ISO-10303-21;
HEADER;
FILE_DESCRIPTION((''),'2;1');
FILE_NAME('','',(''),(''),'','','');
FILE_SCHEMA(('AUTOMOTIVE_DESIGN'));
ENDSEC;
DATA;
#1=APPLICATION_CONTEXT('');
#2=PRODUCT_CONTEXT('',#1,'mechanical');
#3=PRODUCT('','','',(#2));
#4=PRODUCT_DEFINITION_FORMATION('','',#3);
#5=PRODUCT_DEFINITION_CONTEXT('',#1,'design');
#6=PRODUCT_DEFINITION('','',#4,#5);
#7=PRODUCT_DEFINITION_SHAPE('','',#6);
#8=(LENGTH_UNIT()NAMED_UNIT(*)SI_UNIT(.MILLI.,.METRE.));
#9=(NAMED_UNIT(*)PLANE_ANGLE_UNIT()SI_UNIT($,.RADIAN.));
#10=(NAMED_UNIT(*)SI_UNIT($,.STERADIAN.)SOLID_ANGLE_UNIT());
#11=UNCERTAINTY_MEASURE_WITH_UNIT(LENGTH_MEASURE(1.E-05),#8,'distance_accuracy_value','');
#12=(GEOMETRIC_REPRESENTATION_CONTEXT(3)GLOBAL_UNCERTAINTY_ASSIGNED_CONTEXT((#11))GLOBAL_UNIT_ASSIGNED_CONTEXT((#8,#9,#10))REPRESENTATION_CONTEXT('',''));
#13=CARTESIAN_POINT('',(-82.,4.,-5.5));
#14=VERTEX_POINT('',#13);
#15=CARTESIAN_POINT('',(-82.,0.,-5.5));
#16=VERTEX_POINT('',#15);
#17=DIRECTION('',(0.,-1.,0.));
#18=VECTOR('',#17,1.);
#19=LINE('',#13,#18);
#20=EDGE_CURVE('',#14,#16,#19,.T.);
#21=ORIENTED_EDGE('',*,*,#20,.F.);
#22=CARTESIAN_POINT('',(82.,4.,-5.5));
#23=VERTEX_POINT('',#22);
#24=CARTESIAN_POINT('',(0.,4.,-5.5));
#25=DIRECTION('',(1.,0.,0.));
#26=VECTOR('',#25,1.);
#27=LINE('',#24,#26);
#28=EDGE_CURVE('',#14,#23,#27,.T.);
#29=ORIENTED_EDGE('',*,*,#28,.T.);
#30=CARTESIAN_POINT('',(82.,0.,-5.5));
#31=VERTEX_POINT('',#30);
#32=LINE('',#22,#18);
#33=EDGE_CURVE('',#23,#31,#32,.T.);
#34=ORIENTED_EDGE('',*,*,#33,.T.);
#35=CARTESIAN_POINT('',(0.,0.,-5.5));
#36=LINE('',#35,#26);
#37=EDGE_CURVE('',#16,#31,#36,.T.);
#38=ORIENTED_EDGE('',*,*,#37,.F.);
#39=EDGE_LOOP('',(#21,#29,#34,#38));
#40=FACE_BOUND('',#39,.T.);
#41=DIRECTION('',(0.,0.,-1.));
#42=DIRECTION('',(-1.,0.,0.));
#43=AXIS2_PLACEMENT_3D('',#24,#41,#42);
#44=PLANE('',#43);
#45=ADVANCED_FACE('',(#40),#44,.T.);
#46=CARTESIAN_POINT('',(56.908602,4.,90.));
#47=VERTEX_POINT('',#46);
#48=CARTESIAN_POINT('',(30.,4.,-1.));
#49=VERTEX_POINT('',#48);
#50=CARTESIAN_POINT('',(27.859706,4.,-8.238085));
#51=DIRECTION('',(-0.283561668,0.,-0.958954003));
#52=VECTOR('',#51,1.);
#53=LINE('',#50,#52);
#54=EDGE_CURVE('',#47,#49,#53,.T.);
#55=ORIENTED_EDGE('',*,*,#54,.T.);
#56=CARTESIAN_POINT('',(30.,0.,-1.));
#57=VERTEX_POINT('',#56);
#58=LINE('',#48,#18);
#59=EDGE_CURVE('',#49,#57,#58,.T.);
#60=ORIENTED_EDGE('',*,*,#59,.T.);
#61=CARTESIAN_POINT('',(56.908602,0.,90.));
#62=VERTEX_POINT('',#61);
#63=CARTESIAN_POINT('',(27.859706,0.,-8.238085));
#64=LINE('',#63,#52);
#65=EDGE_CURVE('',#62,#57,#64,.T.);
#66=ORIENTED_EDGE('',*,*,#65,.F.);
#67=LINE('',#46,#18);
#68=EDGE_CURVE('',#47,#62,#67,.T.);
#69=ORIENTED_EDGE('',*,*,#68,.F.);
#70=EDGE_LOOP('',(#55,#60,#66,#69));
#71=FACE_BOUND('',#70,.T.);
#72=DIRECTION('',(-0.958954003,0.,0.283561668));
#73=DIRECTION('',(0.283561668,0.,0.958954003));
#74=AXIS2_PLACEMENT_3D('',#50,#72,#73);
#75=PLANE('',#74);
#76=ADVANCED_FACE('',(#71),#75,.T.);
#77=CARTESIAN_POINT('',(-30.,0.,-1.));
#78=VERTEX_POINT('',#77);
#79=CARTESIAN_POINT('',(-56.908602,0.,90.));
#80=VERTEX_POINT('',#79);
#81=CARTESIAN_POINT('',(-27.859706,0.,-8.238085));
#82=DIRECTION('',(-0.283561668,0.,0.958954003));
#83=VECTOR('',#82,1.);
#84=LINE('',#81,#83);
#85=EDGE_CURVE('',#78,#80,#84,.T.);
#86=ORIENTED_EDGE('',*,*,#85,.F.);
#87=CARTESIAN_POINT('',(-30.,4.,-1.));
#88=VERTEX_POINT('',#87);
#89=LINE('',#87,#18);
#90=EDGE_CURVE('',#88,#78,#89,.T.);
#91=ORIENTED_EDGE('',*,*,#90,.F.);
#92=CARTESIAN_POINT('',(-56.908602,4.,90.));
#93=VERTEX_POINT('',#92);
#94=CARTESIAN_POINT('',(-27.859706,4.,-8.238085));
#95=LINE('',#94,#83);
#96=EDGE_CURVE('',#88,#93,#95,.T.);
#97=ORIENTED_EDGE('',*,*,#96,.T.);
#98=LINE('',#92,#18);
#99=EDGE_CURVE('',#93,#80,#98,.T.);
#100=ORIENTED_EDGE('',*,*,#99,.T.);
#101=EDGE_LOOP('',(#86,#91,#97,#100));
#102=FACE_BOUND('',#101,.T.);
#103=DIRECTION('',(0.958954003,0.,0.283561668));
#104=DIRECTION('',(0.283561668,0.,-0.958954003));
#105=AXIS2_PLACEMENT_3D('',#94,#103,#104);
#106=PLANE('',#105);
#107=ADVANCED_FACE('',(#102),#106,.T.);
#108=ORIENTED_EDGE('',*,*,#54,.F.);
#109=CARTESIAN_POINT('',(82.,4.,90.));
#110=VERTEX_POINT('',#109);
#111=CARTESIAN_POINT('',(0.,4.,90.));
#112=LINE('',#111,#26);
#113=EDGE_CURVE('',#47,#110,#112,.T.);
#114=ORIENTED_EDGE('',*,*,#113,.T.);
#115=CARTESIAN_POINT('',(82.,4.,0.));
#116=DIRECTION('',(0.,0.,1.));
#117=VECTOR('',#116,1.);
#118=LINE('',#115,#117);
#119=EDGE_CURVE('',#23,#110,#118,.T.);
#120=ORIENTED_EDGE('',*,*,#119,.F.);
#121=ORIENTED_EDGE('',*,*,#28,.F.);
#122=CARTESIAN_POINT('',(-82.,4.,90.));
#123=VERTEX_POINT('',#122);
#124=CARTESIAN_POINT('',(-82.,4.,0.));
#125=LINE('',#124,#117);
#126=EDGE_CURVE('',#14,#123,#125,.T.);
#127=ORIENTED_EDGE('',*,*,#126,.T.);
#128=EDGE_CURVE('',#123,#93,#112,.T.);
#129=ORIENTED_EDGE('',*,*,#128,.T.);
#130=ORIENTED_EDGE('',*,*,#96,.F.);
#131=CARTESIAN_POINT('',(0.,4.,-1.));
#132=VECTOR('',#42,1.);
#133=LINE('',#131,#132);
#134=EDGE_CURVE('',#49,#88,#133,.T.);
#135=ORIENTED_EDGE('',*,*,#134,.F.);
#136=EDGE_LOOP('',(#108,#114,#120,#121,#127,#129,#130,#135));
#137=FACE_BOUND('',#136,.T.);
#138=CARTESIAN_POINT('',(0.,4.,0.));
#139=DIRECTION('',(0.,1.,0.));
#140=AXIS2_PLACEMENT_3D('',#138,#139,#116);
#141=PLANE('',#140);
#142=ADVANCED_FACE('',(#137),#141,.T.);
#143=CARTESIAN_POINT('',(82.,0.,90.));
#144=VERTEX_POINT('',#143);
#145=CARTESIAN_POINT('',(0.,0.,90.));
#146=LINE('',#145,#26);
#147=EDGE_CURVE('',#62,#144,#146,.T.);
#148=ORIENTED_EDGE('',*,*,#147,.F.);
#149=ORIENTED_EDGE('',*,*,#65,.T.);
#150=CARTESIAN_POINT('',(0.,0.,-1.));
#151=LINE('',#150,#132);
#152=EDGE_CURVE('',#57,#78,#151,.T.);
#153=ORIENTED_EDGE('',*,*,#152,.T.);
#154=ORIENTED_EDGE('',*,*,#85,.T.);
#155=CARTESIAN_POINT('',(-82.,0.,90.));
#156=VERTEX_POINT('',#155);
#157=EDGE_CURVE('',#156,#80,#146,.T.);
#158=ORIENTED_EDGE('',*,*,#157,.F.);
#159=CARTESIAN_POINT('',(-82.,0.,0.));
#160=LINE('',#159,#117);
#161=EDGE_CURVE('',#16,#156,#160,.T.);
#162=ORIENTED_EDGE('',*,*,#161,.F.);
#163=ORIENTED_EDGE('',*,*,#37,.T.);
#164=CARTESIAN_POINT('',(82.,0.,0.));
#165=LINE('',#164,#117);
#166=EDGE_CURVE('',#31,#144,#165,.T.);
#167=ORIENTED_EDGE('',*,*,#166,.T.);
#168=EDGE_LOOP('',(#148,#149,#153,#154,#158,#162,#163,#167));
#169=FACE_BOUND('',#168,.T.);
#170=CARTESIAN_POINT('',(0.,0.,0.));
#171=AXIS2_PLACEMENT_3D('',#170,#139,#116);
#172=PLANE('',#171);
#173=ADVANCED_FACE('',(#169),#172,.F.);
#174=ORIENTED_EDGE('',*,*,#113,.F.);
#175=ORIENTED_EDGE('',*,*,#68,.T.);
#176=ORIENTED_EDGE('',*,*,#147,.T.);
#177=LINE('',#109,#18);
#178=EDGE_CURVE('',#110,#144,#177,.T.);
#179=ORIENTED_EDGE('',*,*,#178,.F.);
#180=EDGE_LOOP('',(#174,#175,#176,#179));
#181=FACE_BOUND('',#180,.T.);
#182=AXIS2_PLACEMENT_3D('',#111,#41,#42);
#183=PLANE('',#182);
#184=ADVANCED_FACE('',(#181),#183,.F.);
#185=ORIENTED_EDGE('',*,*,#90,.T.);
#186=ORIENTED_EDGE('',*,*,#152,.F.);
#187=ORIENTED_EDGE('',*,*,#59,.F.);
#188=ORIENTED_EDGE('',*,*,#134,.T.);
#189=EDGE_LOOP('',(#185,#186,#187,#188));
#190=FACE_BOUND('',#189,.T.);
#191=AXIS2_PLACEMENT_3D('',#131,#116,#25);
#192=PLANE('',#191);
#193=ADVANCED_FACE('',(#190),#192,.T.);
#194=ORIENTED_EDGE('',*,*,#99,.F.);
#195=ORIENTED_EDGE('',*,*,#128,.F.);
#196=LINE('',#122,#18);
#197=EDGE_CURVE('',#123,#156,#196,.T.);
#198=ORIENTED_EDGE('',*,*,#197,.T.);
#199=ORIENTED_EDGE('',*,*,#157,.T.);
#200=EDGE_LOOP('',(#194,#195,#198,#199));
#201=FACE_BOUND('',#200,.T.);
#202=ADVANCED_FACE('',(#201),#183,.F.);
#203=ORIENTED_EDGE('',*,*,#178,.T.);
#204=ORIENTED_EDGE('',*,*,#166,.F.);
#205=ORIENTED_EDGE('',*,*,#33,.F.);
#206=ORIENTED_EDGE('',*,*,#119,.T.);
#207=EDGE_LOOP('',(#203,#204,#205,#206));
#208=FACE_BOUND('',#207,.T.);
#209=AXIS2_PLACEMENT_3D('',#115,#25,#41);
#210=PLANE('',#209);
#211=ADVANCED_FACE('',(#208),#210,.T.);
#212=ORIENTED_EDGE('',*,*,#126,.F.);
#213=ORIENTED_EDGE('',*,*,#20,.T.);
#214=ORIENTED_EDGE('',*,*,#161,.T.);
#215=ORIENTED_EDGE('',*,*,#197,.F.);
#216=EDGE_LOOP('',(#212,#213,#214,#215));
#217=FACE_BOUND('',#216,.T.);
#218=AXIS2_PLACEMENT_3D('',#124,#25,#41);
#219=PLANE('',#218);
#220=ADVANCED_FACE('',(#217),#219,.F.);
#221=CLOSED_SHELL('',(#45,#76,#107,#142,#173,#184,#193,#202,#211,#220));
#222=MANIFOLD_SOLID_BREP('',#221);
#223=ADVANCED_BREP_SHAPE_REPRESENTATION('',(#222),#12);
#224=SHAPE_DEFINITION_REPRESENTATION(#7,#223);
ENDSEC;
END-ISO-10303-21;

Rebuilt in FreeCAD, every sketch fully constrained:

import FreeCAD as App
import Part
import Sketcher
from FreeCAD import Vector

doc = App.newDocument("Part")
body = doc.addObject("PartDesign::Body", "Body")

sketch1 = body.newObject("Sketcher::SketchObject", "Sketch")
sketch1.AttachmentSupport = (doc.getObject("XZ_Plane"), [""])
sketch1.MapMode = "FlatFace"
sketch1.addGeometry(Part.LineSegment(Vector(30, -1, 0), Vector(57, 90, 0)), False)
sketch1.addGeometry(Part.LineSegment(Vector(57, 90, 0), Vector(82, 90, 0)), False)
sketch1.addGeometry(Part.LineSegment(Vector(82, 90, 0), Vector(82, -6, 0)), False)
sketch1.addGeometry(Part.LineSegment(Vector(82, -6, 0), Vector(-82, -6, 0)), False)
sketch1.addGeometry(Part.LineSegment(Vector(-82, -6, 0), Vector(-82, 90, 0)), False)
sketch1.addGeometry(Part.LineSegment(Vector(-82, 90, 0), Vector(-57, 90, 0)), False)
sketch1.addGeometry(Part.LineSegment(Vector(-57, 90, 0), Vector(-30, -1, 0)), False)
sketch1.addGeometry(Part.LineSegment(Vector(-30, -1, 0), Vector(30, -1, 0)), False)
sketch1.addConstraint(Sketcher.Constraint("Coincident", 0, 2, 1, 1))
sketch1.addConstraint(Sketcher.Constraint("Coincident", 1, 2, 2, 1))
sketch1.addConstraint(Sketcher.Constraint("Coincident", 2, 2, 3, 1))
sketch1.addConstraint(Sketcher.Constraint("Coincident", 3, 2, 4, 1))
sketch1.addConstraint(Sketcher.Constraint("Coincident", 4, 2, 5, 1))
sketch1.addConstraint(Sketcher.Constraint("Coincident", 5, 2, 6, 1))
sketch1.addConstraint(Sketcher.Constraint("Coincident", 6, 2, 7, 1))
sketch1.addConstraint(Sketcher.Constraint("Coincident", 7, 2, 0, 1))
sketch1.addConstraint(Sketcher.Constraint("Horizontal", 1))
sketch1.addConstraint(Sketcher.Constraint("Vertical", 2))
sketch1.addConstraint(Sketcher.Constraint("Horizontal", 3))
sketch1.addConstraint(Sketcher.Constraint("Vertical", 4))
sketch1.addConstraint(Sketcher.Constraint("Horizontal", 5))
sketch1.addConstraint(Sketcher.Constraint("Horizontal", 7))
sketch1.addConstraint(Sketcher.Constraint("Symmetric", 1, 2, 4, 2, -2))
sketch1.addConstraint(Sketcher.Constraint("Equal", 1, 5))
sketch1.addConstraint(Sketcher.Constraint("Equal", 0, 6))
sketch1.addConstraint(Sketcher.Constraint("DistanceX", 3, 2, 3, 1, 164.0))
sketch1.addConstraint(Sketcher.Constraint("DistanceX", 7, 1, 7, 2, 60.0))
sketch1.addConstraint(Sketcher.Constraint("DistanceY", 2, 2, 2, 1, 95.5))
sketch1.addConstraint(Sketcher.Constraint("DistanceY", -1, 1, 0, 2, 90.0))
sketch1.addConstraint(Sketcher.Constraint("DistanceY", 6, 2, -1, 1, 1.0))
sketch1.addConstraint(Sketcher.Constraint("DistanceX", 1, 1, 1, 2, 25.091398))
pad1 = body.newObject("PartDesign::Pad", "Pad")
pad1.Profile = sketch1
pad1.Length = 4
pad1.Reversed = True

doc.recompute()
